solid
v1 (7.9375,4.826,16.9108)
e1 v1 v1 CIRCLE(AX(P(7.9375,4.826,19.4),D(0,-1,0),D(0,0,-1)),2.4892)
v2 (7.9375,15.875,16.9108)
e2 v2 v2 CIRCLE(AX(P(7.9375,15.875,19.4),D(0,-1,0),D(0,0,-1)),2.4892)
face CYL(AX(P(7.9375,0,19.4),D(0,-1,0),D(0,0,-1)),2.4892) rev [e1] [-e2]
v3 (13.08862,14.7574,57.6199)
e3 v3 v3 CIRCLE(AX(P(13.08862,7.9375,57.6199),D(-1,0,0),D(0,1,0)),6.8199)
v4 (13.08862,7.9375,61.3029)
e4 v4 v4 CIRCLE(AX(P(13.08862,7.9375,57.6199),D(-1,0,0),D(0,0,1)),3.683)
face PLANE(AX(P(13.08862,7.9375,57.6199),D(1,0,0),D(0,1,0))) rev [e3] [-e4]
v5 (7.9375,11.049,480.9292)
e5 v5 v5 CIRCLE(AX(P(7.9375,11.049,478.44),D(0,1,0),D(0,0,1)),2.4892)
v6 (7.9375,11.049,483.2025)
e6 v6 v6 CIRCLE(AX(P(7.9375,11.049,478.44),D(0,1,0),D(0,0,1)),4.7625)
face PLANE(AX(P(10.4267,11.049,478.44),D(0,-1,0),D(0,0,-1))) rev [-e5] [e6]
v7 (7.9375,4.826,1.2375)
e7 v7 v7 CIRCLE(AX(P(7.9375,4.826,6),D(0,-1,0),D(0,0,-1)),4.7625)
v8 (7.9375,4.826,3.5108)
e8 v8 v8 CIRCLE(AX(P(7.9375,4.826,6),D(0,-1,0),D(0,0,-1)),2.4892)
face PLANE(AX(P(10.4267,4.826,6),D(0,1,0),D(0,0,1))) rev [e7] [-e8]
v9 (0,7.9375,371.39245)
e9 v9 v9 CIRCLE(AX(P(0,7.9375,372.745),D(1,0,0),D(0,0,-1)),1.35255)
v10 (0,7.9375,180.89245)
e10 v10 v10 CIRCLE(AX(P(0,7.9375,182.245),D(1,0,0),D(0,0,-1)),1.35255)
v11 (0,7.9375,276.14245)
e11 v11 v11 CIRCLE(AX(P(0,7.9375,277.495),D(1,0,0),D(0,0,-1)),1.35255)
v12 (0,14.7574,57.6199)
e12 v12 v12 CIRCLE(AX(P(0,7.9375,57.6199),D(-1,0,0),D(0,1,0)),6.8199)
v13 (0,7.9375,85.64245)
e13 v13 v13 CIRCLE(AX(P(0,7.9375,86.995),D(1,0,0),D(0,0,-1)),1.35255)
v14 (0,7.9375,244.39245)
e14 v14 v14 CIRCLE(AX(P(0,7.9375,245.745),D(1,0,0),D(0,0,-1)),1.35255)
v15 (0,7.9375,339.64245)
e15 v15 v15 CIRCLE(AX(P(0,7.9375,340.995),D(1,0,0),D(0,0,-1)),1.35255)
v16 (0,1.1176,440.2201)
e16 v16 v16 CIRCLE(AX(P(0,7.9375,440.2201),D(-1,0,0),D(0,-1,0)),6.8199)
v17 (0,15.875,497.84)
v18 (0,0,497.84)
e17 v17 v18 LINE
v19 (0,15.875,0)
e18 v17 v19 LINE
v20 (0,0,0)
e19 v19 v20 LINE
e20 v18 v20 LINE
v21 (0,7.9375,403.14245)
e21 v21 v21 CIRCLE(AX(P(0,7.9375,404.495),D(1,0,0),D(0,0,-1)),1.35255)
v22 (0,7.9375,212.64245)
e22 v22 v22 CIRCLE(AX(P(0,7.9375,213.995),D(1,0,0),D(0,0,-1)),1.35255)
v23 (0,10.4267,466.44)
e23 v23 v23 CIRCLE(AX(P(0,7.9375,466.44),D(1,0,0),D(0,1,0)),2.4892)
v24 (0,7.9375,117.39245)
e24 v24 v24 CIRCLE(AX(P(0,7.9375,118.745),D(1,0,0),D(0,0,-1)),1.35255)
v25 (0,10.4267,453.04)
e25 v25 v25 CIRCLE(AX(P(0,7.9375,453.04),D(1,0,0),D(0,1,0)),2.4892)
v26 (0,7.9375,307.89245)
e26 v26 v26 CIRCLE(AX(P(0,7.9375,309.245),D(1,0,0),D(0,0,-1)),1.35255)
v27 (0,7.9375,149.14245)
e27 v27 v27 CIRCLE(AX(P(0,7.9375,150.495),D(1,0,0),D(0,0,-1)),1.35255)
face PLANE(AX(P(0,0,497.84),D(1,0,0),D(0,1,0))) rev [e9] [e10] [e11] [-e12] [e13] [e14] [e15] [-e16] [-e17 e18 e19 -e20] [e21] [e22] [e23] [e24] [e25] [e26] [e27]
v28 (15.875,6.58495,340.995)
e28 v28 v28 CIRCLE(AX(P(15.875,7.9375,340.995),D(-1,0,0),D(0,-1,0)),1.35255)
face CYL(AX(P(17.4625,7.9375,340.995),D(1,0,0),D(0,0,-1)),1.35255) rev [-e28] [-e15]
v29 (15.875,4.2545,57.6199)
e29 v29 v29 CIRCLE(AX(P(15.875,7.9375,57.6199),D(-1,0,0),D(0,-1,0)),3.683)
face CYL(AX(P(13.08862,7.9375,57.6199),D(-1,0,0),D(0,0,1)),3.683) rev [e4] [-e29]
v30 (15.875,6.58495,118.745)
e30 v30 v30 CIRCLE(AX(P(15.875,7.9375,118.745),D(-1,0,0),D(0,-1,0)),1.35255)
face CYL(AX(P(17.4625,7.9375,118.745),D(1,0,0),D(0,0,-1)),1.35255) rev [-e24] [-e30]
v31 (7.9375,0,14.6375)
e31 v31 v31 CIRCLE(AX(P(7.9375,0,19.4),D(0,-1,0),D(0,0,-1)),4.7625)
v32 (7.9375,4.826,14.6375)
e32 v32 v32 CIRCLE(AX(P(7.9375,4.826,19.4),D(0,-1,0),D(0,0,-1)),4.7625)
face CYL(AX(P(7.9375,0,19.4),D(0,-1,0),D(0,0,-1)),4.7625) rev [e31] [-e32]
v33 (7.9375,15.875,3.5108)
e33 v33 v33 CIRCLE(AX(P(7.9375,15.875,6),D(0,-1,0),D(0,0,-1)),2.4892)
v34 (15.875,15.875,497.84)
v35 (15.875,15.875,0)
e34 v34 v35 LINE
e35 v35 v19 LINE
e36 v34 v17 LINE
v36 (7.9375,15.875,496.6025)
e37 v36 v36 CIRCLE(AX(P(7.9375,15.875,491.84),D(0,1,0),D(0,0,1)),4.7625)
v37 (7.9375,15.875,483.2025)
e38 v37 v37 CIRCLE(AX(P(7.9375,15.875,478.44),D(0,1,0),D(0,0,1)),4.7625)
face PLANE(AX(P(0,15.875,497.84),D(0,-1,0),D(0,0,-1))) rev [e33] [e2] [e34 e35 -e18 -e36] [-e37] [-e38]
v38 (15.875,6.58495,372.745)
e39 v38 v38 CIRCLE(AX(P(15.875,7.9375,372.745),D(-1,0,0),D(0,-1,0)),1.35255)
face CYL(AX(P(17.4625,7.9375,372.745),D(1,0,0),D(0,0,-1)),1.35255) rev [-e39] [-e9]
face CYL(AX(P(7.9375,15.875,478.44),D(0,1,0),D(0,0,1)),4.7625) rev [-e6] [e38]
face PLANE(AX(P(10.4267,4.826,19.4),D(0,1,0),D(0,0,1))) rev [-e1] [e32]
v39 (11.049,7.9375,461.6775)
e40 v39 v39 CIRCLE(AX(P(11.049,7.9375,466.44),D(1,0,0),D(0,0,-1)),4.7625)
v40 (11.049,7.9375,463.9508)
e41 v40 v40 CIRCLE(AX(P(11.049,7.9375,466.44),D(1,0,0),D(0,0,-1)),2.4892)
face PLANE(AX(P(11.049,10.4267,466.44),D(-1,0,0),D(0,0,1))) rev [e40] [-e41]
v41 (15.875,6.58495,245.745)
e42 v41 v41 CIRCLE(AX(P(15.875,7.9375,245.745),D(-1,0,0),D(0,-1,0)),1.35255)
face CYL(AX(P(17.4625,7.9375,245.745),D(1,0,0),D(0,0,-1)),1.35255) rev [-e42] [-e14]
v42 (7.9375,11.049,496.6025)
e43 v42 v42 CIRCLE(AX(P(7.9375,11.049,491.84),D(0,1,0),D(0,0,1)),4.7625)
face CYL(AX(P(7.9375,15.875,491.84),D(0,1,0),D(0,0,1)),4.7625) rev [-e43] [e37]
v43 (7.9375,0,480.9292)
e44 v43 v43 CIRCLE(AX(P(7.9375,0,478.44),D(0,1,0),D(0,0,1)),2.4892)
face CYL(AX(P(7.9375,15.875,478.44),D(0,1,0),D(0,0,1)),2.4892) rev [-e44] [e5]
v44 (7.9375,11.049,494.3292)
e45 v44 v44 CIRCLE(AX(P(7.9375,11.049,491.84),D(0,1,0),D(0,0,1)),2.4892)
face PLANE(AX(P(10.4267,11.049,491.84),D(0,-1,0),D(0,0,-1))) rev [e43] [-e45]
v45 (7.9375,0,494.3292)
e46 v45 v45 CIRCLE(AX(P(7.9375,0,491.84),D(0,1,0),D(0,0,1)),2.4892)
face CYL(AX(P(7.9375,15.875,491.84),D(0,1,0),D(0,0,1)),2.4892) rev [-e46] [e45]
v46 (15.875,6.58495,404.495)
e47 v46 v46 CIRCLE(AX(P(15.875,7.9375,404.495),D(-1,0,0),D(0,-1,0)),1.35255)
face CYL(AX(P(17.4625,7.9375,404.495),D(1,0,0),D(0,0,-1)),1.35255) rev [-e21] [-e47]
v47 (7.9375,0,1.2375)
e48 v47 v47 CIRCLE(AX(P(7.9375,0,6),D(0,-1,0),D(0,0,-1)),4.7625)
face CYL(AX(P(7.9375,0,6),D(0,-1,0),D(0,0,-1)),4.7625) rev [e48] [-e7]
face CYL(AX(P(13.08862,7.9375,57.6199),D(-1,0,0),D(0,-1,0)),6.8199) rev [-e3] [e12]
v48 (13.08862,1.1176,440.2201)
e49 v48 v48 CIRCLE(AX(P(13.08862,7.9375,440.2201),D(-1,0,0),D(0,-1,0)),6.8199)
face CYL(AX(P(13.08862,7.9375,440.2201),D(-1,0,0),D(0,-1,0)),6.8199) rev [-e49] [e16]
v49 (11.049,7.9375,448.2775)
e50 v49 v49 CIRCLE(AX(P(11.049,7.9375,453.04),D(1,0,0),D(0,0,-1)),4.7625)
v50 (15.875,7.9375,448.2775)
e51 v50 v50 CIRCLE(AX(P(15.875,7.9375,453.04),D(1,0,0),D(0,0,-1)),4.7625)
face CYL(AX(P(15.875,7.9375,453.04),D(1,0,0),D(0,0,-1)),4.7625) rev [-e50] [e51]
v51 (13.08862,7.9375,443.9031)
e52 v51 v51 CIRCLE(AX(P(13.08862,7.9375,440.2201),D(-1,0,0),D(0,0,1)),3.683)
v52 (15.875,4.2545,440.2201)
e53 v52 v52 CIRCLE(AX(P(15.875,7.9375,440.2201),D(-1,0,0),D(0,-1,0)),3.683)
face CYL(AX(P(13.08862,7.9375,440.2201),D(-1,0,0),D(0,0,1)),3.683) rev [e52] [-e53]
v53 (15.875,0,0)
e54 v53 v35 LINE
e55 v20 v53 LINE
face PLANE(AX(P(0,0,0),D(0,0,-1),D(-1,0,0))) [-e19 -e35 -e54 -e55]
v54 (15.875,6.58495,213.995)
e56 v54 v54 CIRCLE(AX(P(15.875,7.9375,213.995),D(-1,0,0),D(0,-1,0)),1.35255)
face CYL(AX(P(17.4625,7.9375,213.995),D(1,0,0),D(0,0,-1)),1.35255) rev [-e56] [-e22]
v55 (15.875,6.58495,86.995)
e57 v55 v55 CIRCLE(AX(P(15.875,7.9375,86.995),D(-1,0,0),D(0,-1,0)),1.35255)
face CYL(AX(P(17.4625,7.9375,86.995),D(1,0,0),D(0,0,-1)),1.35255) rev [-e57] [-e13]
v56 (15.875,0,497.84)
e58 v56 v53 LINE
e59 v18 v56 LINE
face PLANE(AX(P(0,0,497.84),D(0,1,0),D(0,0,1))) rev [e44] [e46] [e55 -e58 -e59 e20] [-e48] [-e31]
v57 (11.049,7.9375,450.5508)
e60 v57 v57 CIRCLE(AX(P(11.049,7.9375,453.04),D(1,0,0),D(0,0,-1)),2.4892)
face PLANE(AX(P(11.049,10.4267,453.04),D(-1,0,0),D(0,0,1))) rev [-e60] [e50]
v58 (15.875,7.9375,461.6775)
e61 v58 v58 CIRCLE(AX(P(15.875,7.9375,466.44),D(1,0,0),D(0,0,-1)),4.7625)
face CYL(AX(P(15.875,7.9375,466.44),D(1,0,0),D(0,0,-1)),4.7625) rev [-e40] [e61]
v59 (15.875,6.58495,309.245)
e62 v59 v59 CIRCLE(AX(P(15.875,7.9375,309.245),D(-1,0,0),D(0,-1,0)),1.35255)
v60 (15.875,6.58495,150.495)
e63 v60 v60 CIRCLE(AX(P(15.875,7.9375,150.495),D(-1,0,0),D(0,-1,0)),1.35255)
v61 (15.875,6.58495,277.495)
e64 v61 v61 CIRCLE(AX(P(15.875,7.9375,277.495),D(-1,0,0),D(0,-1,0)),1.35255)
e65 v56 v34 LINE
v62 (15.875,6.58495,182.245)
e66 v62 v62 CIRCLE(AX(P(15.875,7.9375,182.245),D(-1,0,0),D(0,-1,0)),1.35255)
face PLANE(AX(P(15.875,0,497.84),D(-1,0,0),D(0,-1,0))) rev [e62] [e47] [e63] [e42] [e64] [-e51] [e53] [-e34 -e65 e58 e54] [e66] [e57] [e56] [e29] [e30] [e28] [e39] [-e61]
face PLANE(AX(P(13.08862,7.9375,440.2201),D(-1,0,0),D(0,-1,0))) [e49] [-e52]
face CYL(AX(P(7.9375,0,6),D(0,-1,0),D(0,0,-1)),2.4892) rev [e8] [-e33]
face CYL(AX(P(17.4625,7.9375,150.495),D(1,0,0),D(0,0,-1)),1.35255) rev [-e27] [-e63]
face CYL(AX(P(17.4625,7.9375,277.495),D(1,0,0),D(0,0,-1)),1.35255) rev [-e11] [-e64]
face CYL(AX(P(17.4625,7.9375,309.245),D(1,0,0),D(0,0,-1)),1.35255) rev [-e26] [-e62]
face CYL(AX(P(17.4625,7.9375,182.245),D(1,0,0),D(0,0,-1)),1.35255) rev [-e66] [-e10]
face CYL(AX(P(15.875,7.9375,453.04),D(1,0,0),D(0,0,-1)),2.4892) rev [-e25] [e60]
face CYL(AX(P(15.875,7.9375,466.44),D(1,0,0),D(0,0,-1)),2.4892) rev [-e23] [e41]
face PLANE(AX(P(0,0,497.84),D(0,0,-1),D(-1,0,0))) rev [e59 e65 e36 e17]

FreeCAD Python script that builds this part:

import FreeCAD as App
import Part
import Sketcher

V = App.Vector
Q = App.Units.Quantity


def add_polygon(sketch, points):
    """Adds a closed chain of lines whose ends are joined by coincident constraints."""
    first, n = sketch.GeometryCount, len(points)
    for a, b in zip(points, points[1:] + points[:1]):
        sketch.addGeometry(Part.LineSegment(App.Vector(*a, 0), App.Vector(*b, 0)), False)
    for i in range(n):
        sketch.addConstraint(Sketcher.Constraint("Coincident", first + i, 2, first + (i + 1) % n, 1))

doc = App.newDocument("Part")
params = doc.addObject("Spreadsheet::Sheet", "Params")
for row, (alias, value) in enumerate([
    ("sketch1_width", "0.625 in"),
    ("pad1_length", "19.6 in"),
    ("sketch2_diameter", "0.537 in"),
    ("pocket1_length", "0.5153 in"),
    ("sketch3_diameter", "0.29 in"),
    ("hole_diameter", "0.29 in"),
    ("hole_depth", "2 in"),
    ("hole2_diameter", "0.1065 in"),
    ("sketch5_diameter", "0.196 in"),
    ("hole3_diameter", "0.196 in"),
    ("hole3_depth", "1 in"),
    ("hole3_cbore_diameter", "0.375 in"),
    ("hole3_cbore_depth", "0.19 in"),
    ("sketch6_diameter", "0.196 in"),
    ("hole4_diameter", "0.196 in"),
    ("hole4_depth", "1 in"),
    ("hole4_cbore_diameter", "0.375 in"),
    ("hole4_cbore_depth", "0.19 in"),
    ("sketch7_diameter", "0.196 in"),
    ("hole5_diameter", "0.196 in"),
    ("hole5_depth", "1 in"),
    ("hole5_cbore_diameter", "0.375 in"),
    ("hole5_cbore_depth", "0.19 in"),
], start=1):
    params.set(f"A{row}", alias)
    params.set(f"B{row}", "=" + value)
    params.setAlias(f"B{row}", alias)

body = doc.addObject("PartDesign::Body", "Body")

sketch1 = doc.addObject("Sketcher::SketchObject", "Sketch")
body.addObject(sketch1)
sketch1.AttachmentSupport = (doc.XY_Plane, [""])
sketch1.MapMode = "FlatFace"
add_polygon(sketch1, [(0, 16), (0, 0), (16, 0), (16, 16)])
sketch1.addConstraint(Sketcher.Constraint("Vertical", 0))
sketch1.addConstraint(Sketcher.Constraint("Horizontal", 1))
sketch1.addConstraint(Sketcher.Constraint("Vertical", 2))
sketch1.addConstraint(Sketcher.Constraint("Horizontal", 3))
sketch1.addConstraint(Sketcher.Constraint("Coincident", 0, 2, -1, 1))
sketch1.addConstraint(Sketcher.Constraint("Equal", 3, 0))
sketch1.addConstraint(Sketcher.Constraint("DistanceX", 1, 1, 1, 2, Q("0.625 in")))
sketch1.setExpression("Constraints[10]", "Params.sketch1_width")
pad1 = doc.addObject("PartDesign::Pad", "Pad")
body.addObject(pad1)
pad1.Profile = sketch1
pad1.setExpression("Length", "Params.pad1_length")

sketch2 = doc.addObject("Sketcher::SketchObject", "Sketch001")
body.addObject(sketch2)
sketch2.AttachmentSupport = (doc.YZ_Plane, [""])
sketch2.MapMode = "FlatFace"
sketch2.addGeometry(Part.Circle(V(8, 440, 0), V(0, 0, 1), 7), False)
sketch2.addGeometry(Part.Circle(V(8, 58, 0), V(0, 0, 1), 7), False)
sketch2.addConstraint(Sketcher.Constraint("Equal", 0, 1))
sketch2.addConstraint(Sketcher.Constraint("Vertical", 0, 3, 1, 3))
sketch2.addConstraint(Sketcher.Constraint("Diameter", 0, Q("0.537 in")))
sketch2.addConstraint(Sketcher.Constraint("DistanceX", -1, 1, 0, 3, Q("0.3125 in")))
sketch2.addConstraint(Sketcher.Constraint("DistanceY", 1, 3, 0, 3, Q("15.063 in")))
sketch2.addConstraint(Sketcher.Constraint("DistanceY", -1, 1, 0, 3, Q("17.3315 in")))
sketch2.setExpression("Constraints[2]", "Params.sketch2_diameter")
pocket1 = doc.addObject("PartDesign::Pocket", "Pocket")
body.addObject(pocket1)
pocket1.Profile = sketch2
pocket1.setExpression("Length", "Params.pocket1_length")
pocket1.Reversed = True

sketch3 = doc.addObject("Sketcher::SketchObject", "Sketch002")
body.addObject(sketch3)
sketch3.AttachmentSupport = (doc.YZ_Plane, [""])
sketch3.MapMode = "FlatFace"
sketch3.AttachmentOffset = App.Placement(V(0, 0, 0.5153 * 25.4), App.Rotation())
sketch3.addGeometry(Part.Circle(V(7.9, 57.6, 0), V(0, 0, 1), 3.7), False)
sketch3.addGeometry(Part.Circle(V(7.9, 440.2, 0), V(0, 0, 1), 3.7), False)
sketch3.addConstraint(Sketcher.Constraint("Equal", 0, 1))
sketch3.addConstraint(Sketcher.Constraint("Vertical", 0, 3, 1, 3))
sketch3.addConstraint(Sketcher.Constraint("Diameter", 0, Q("0.29 in")))
sketch3.addConstraint(Sketcher.Constraint("DistanceX", -1, 1, 0, 3, Q("0.3125 in")))
sketch3.addConstraint(Sketcher.Constraint("DistanceY", 0, 3, 1, 3, Q("15.063 in")))
sketch3.addConstraint(Sketcher.Constraint("DistanceY", -1, 1, 0, 3, Q("2.2685 in")))
sketch3.setExpression("Constraints[2]", "Params.sketch3_diameter")
doc.recompute()
hole = doc.addObject("PartDesign::Hole", "Hole")
body.addObject(hole)
hole.Profile = sketch3
hole.ThreadType = "None"
hole.setExpression("Diameter", "Params.hole_diameter")
hole.DepthType = "Dimension"
hole.setExpression("Depth", "Params.hole_depth")
hole.DrillPoint = "Angled"
hole.DrillPointAngle = 118
hole.Reversed = True

sketch4 = doc.addObject("Sketcher::SketchObject", "Sketch003")
body.addObject(sketch4)
sketch4.AttachmentSupport = (doc.YZ_Plane, [""])
sketch4.MapMode = "FlatFace"
sketch4.AttachmentOffset = App.Placement(V(0, 0, 0.6875 * 25.4), App.Rotation())
sketch4.addGeometry(Part.Circle(V(7.9, 404.5, 0), V(0, 0, 1), 1.4), False)
sketch4.addGeometry(Part.Circle(V(7.9, 372.7, 0), V(0, 0, 1), 1.4), False)
sketch4.addGeometry(Part.Circle(V(7.9, 341, 0), V(0, 0, 1), 1.4), False)
sketch4.addGeometry(Part.Circle(V(7.9, 309.2, 0), V(0, 0, 1), 1.4), False)
sketch4.addGeometry(Part.Circle(V(7.9, 277.5, 0), V(0, 0, 1), 1.4), False)
sketch4.addGeometry(Part.Circle(V(7.9, 245.7, 0), V(0, 0, 1), 1.4), False)
sketch4.addGeometry(Part.Circle(V(7.9, 214, 0), V(0, 0, 1), 1.4), False)
sketch4.addGeometry(Part.Circle(V(7.9, 182.2, 0), V(0, 0, 1), 1.4), False)
sketch4.addGeometry(Part.Circle(V(7.9, 150.5, 0), V(0, 0, 1), 1.4), False)
sketch4.addGeometry(Part.Circle(V(7.9, 118.7, 0), V(0, 0, 1), 1.4), False)
sketch4.addGeometry(Part.Circle(V(7.9, 87, 0), V(0, 0, 1), 1.4), False)
sketch4.addConstraint(Sketcher.Constraint("Equal", 0, 1))
sketch4.addConstraint(Sketcher.Constraint("Equal", 1, 2))
sketch4.addConstraint(Sketcher.Constraint("Equal", 2, 3))
sketch4.addConstraint(Sketcher.Constraint("Equal", 3, 4))
sketch4.addConstraint(Sketcher.Constraint("Equal", 4, 5))
sketch4.addConstraint(Sketcher.Constraint("Equal", 5, 6))
sketch4.addConstraint(Sketcher.Constraint("Equal", 6, 7))
sketch4.addConstraint(Sketcher.Constraint("Equal", 7, 8))
sketch4.addConstraint(Sketcher.Constraint("Equal", 8, 9))
sketch4.addConstraint(Sketcher.Constraint("Equal", 9, 10))
sketch4.addConstraint(Sketcher.Constraint("Vertical", 0, 3, 1, 3))
sketch4.addConstraint(Sketcher.Constraint("Vertical", 1, 3, 2, 3))
sketch4.addConstraint(Sketcher.Constraint("Vertical", 2, 3, 3, 3))
sketch4.addConstraint(Sketcher.Constraint("Vertical", 3, 3, 4, 3))
sketch4.addConstraint(Sketcher.Constraint("Vertical", 4, 3, 5, 3))
sketch4.addConstraint(Sketcher.Constraint("Vertical", 5, 3, 6, 3))
sketch4.addConstraint(Sketcher.Constraint("Vertical", 6, 3, 7, 3))
sketch4.addConstraint(Sketcher.Constraint("Vertical", 7, 3, 8, 3))
sketch4.addConstraint(Sketcher.Constraint("Vertical", 8, 3, 9, 3))
sketch4.addConstraint(Sketcher.Constraint("Vertical", 9, 3, 10, 3))
sketch4.addConstraint(Sketcher.Constraint("DistanceY", 4, 3, 0, 3, Q("5 in")))
sketch4.addConstraint(Sketcher.Constraint("DistanceY", 5, 3, 1, 3, Q("5 in")))
sketch4.addConstraint(Sketcher.Constraint("DistanceY", 6, 3, 2, 3, Q("5 in")))
sketch4.addConstraint(Sketcher.Constraint("DistanceY", 7, 3, 3, 3, Q("5 in")))
sketch4.addConstraint(Sketcher.Constraint("DistanceY", 8, 3, 4, 3, Q("5 in")))
sketch4.addConstraint(Sketcher.Constraint("DistanceY", 9, 3, 5, 3, Q("5 in")))
sketch4.addConstraint(Sketcher.Constraint("DistanceY", 10, 3, 6, 3, Q("5 in")))
sketch4.addConstraint(Sketcher.Constraint("Diameter", 0, Q("0.1065 in")))
sketch4.addConstraint(Sketcher.Constraint("DistanceY", 2, 3, 0, 3, Q("2.5 in")))
sketch4.addConstraint(Sketcher.Constraint("DistanceY", 3, 3, 1, 3, Q("2.5 in")))
sketch4.addConstraint(Sketcher.Constraint("DistanceY", 1, 3, 0, 3, Q("1.25 in")))
sketch4.addConstraint(Sketcher.Constraint("DistanceX", -1, 1, 0, 3, Q("0.3125 in")))
sketch4.addConstraint(Sketcher.Constraint("DistanceY", -1, 1, 0, 3, Q("15.925 in")))
doc.recompute()
hole2 = doc.addObject("PartDesign::Hole", "Hole001")
body.addObject(hole2)
hole2.Profile = sketch4
hole2.ThreadType = "None"
hole2.setExpression("Diameter", "Params.hole2_diameter")
hole2.DepthType = "ThroughAll"

sketch5 = doc.addObject("Sketcher::SketchObject", "Sketch004")
body.addObject(sketch5)
sketch5.AttachmentSupport = (doc.XZ_Plane, [""])
sketch5.MapMode = "FlatFace"
sketch5.AttachmentOffset = App.Placement(V(0, 0, -0.625 * 25.4), App.Rotation())
sketch5.addGeometry(Part.Circle(V(7.9, 478.4, 0), V(0, 0, 1), 2.5), False)
sketch5.addGeometry(Part.Circle(V(7.9, 491.8, 0), V(0, 0, 1), 2.5), False)
sketch5.addGeometry(Part.Circle(V(-458.8, 478.4, 0), V(0, 0, 1), 2.5), False)
sketch5.addGeometry(Part.Circle(V(-458.8, 491.8, 0), V(0, 0, 1), 2.5), False)
sketch5.addConstraint(Sketcher.Constraint("Equal", 0, 1))
sketch5.addConstraint(Sketcher.Constraint("Equal", 1, 2))
sketch5.addConstraint(Sketcher.Constraint("Equal", 2, 3))
sketch5.addConstraint(Sketcher.Constraint("Horizontal", 0, 3, 2, 3))
sketch5.addConstraint(Sketcher.Constraint("Horizontal", 1, 3, 3, 3))
sketch5.addConstraint(Sketcher.Constraint("Vertical", 0, 3, 1, 3))
sketch5.addConstraint(Sketcher.Constraint("Vertical", 2, 3, 3, 3))
sketch5.addConstraint(Sketcher.Constraint("Diameter", 0, Q("0.196 in")))
sketch5.addConstraint(Sketcher.Constraint("DistanceX", -1, 1, 0, 3, Q("0.3125 in")))
sketch5.addConstraint(Sketcher.Constraint("DistanceX", 2, 3, -1, 1, Q("18.0625 in")))
sketch5.addConstraint(Sketcher.Constraint("DistanceY", -1, 1, 0, 3, Q("478.44 mm")))
sketch5.addConstraint(Sketcher.Constraint("DistanceY", -1, 1, 1, 3, Q("491.84 mm")))
sketch5.setExpression("Constraints[7]", "Params.sketch5_diameter")
doc.recompute()
hole3 = doc.addObject("PartDesign::Hole", "Hole002")
body.addObject(hole3)
hole3.Profile = sketch5
hole3.ThreadType = "None"
hole3.setExpression("Diameter", "Params.hole3_diameter")
hole3.DepthType = "Dimension"
hole3.setExpression("Depth", "Params.hole3_depth")
hole3.DrillPoint = "Angled"
hole3.DrillPointAngle = 118
hole3.HoleCutType = "Counterbore"
hole3.setExpression("HoleCutDiameter", "Params.hole3_cbore_diameter")
hole3.setExpression("HoleCutDepth", "Params.hole3_cbore_depth")
hole3.Reversed = True

sketch6 = doc.addObject("Sketcher::SketchObject", "Sketch005")
body.addObject(sketch6)
sketch6.AttachmentSupport = (doc.XZ_Plane, [""])
sketch6.MapMode = "FlatFace"
sketch6.addGeometry(Part.Circle(V(-458.8, 19.4, 0), V(0, 0, 1), 2.5), False)
sketch6.addGeometry(Part.Circle(V(-458.8, 6, 0), V(0, 0, 1), 2.5), False)
sketch6.addGeometry(Part.Circle(V(7.9, 19.4, 0), V(0, 0, 1), 2.5), False)
sketch6.addGeometry(Part.Circle(V(7.9, 6, 0), V(0, 0, 1), 2.5), False)
sketch6.addConstraint(Sketcher.Constraint("Equal", 0, 1))
sketch6.addConstraint(Sketcher.Constraint("Equal", 1, 2))
sketch6.addConstraint(Sketcher.Constraint("Equal", 2, 3))
sketch6.addConstraint(Sketcher.Constraint("Horizontal", 0, 3, 2, 3))
sketch6.addConstraint(Sketcher.Constraint("Horizontal", 1, 3, 3, 3))
sketch6.addConstraint(Sketcher.Constraint("Vertical", 0, 3, 1, 3))
sketch6.addConstraint(Sketcher.Constraint("Vertical", 2, 3, 3, 3))
sketch6.addConstraint(Sketcher.Constraint("Diameter", 0, Q("0.196 in")))
sketch6.addConstraint(Sketcher.Constraint("DistanceX", 0, 3, -1, 1, Q("18.0625 in")))
sketch6.addConstraint(Sketcher.Constraint("DistanceX", -1, 1, 2, 3, Q("0.3125 in")))
sketch6.addConstraint(Sketcher.Constraint("DistanceY", -1, 1, 0, 3, Q("19.4 mm")))
sketch6.addConstraint(Sketcher.Constraint("DistanceY", -1, 1, 1, 3, Q("6 mm")))
sketch6.setExpression("Constraints[7]", "Params.sketch6_diameter")
doc.recompute()
hole4 = doc.addObject("PartDesign::Hole", "Hole003")
body.addObject(hole4)
hole4.Profile = sketch6
hole4.ThreadType = "None"
hole4.setExpression("Diameter", "Params.hole4_diameter")
hole4.DepthType = "Dimension"
hole4.setExpression("Depth", "Params.hole4_depth")
hole4.DrillPoint = "Angled"
hole4.DrillPointAngle = 118
hole4.HoleCutType = "Counterbore"
hole4.setExpression("HoleCutDiameter", "Params.hole4_cbore_diameter")
hole4.setExpression("HoleCutDepth", "Params.hole4_cbore_depth")

sketch7 = doc.addObject("Sketcher::SketchObject", "Sketch006")
body.addObject(sketch7)
sketch7.AttachmentSupport = (doc.YZ_Plane, [""])
sketch7.MapMode = "FlatFace"
sketch7.AttachmentOffset = App.Placement(V(0, 0, 0.625 * 25.4), App.Rotation())
sketch7.addGeometry(Part.Circle(V(7.9, 453, 0), V(0, 0, 1), 2.5), False)
sketch7.addGeometry(Part.Circle(V(7.9, 466.4, 0), V(0, 0, 1), 2.5), False)
sketch7.addConstraint(Sketcher.Constraint("Equal", 0, 1))
sketch7.addConstraint(Sketcher.Constraint("Vertical", 0, 3, 1, 3))
sketch7.addConstraint(Sketcher.Constraint("Diameter", 0, Q("0.196 in")))
sketch7.addConstraint(Sketcher.Constraint("DistanceX", -1, 1, 0, 3, Q("0.3125 in")))
sketch7.addConstraint(Sketcher.Constraint("DistanceY", -1, 1, 0, 3, Q("453.04 mm")))
sketch7.addConstraint(Sketcher.Constraint("DistanceY", -1, 1, 1, 3, Q("466.44 mm")))
sketch7.setExpression("Constraints[2]", "Params.sketch7_diameter")
doc.recompute()
hole5 = doc.addObject("PartDesign::Hole", "Hole004")
body.addObject(hole5)
hole5.Profile = sketch7
hole5.ThreadType = "None"
hole5.setExpression("Diameter", "Params.hole5_diameter")
hole5.DepthType = "Dimension"
hole5.setExpression("Depth", "Params.hole5_depth")
hole5.DrillPoint = "Angled"
hole5.DrillPointAngle = 118
hole5.HoleCutType = "Counterbore"
hole5.setExpression("HoleCutDiameter", "Params.hole5_cbore_diameter")
hole5.setExpression("HoleCutDepth", "Params.hole5_cbore_depth")

doc.recompute()
